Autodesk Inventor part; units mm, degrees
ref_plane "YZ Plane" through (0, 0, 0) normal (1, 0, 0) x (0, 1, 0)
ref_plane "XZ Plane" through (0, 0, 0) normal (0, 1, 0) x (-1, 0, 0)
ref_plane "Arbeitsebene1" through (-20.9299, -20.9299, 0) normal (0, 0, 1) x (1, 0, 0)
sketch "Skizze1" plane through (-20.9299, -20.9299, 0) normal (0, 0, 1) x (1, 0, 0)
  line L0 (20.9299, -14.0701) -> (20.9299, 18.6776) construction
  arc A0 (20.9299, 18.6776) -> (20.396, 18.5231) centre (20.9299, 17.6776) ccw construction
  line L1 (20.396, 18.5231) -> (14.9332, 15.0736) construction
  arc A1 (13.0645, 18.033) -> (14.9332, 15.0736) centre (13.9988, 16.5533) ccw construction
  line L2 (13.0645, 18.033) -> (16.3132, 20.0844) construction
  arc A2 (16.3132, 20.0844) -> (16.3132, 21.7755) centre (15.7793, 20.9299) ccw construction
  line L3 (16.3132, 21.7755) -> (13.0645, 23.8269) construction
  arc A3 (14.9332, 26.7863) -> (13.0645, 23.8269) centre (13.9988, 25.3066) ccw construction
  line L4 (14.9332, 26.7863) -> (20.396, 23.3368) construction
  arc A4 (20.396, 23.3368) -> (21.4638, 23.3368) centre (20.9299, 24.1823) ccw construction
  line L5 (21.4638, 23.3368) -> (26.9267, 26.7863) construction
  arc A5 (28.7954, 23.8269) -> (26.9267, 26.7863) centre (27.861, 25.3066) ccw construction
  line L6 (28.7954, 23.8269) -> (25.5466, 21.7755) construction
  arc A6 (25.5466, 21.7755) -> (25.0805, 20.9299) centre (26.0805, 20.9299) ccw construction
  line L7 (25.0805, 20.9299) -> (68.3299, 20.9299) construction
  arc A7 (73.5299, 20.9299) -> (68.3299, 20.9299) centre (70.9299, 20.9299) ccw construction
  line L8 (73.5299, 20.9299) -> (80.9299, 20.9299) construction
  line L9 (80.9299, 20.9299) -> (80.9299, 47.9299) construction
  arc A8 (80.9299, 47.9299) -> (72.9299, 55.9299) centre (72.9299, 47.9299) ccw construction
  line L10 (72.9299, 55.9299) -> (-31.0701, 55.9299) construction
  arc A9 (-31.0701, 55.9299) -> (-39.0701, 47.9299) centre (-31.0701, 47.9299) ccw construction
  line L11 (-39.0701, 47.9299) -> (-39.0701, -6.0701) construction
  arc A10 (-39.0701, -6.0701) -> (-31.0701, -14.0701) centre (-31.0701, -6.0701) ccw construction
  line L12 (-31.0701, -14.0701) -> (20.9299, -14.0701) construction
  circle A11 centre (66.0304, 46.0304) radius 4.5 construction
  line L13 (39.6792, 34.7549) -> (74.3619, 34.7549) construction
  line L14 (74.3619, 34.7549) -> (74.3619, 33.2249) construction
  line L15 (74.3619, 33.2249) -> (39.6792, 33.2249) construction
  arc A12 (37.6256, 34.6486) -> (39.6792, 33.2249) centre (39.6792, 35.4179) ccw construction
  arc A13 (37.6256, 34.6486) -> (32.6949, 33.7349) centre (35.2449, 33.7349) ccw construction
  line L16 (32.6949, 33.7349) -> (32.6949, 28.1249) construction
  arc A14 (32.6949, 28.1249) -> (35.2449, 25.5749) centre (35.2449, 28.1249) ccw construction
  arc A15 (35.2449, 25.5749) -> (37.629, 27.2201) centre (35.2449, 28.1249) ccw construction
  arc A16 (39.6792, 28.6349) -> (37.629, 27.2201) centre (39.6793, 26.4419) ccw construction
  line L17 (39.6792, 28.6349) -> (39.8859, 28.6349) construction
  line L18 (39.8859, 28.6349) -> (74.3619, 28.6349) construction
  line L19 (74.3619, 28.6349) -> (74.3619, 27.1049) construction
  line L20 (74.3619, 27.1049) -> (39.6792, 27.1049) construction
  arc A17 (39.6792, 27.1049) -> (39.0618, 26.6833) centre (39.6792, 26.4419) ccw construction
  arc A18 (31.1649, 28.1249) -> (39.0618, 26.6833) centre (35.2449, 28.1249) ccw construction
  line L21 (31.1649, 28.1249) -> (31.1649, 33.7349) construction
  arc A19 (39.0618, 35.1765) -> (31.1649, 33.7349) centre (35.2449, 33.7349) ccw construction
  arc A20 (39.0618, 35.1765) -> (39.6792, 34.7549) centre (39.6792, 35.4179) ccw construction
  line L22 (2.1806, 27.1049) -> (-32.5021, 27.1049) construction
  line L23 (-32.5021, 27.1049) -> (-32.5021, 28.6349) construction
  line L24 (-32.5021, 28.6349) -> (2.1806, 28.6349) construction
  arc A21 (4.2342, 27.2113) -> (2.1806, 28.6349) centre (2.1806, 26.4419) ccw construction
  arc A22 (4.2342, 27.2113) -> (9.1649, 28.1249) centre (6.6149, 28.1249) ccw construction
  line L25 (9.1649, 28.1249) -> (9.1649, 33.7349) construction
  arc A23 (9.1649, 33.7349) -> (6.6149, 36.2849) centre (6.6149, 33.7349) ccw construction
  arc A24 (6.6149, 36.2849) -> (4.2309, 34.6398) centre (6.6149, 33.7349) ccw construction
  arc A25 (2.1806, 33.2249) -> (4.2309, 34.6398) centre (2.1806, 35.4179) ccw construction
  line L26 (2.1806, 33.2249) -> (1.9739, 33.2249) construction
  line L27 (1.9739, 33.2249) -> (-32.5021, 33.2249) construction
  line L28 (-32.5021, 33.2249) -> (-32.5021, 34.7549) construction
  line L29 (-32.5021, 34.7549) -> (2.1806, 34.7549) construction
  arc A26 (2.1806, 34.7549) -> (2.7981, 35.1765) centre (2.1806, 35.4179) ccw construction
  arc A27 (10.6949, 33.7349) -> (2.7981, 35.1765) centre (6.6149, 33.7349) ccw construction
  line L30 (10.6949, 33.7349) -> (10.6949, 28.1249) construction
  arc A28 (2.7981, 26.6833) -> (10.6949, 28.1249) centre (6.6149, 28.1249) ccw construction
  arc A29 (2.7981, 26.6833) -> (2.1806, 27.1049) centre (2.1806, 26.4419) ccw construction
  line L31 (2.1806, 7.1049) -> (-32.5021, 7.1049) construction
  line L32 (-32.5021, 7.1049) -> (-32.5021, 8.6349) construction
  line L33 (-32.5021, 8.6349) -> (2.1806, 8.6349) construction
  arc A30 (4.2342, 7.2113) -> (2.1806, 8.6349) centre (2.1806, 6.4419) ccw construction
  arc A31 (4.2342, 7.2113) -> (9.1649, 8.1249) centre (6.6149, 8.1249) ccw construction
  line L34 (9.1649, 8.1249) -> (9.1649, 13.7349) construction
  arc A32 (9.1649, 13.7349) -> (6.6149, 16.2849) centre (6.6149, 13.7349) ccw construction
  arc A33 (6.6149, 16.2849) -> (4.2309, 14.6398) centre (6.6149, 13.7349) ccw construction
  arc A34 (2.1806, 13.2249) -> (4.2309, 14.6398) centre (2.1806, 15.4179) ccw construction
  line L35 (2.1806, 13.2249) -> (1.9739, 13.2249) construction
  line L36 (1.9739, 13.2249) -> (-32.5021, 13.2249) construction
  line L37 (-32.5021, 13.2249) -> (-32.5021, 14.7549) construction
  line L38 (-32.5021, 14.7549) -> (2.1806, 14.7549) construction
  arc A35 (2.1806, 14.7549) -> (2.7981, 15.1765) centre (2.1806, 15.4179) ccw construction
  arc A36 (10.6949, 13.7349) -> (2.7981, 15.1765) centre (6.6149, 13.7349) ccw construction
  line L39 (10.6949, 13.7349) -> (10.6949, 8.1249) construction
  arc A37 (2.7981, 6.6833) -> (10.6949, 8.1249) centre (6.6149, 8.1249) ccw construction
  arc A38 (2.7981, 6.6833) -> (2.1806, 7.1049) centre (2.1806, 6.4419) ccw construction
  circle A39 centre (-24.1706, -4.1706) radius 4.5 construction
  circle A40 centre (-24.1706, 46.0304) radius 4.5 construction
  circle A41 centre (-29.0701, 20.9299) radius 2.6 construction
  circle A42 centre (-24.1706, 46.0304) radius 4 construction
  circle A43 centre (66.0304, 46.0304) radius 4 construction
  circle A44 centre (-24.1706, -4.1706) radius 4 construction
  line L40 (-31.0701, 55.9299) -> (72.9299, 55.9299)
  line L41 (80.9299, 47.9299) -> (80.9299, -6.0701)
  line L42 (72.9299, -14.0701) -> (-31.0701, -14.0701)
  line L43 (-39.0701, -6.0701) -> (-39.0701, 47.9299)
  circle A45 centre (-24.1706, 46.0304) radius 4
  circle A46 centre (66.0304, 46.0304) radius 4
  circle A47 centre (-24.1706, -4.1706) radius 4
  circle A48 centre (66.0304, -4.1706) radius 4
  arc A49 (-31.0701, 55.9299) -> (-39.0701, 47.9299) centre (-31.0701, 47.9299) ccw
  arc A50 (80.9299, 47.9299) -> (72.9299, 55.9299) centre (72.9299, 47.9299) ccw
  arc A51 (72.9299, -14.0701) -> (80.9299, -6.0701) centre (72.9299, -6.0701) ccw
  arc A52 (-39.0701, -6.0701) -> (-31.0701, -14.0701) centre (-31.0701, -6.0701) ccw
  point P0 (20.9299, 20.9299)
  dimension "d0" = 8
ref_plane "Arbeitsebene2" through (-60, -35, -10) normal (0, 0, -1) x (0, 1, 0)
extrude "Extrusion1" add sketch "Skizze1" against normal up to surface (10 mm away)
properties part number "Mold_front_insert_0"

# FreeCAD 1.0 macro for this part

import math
import FreeCAD as App
import Part
import Sketcher

V = App.Vector

doc = App.newDocument("Part")
body = doc.addObject("PartDesign::Body", "Body")

sketch1 = body.newObject("Sketcher::SketchObject", "Sketch")
sketch1.AttachmentSupport = (doc.getObject("XY_Plane"), [""])
sketch1.MapMode = "FlatFace"
sketch1.addGeometry([
    Part.LineSegment(V(52, 35, 0), V(-52, 35, 0)),
    Part.ArcOfCircle(Part.Circle(V(-52, 27, 0), V(0, 0, 1), 8), math.radians(90), math.radians(180)),
    Part.LineSegment(V(-60, 27, 0), V(-60, -27, 0)),
    Part.ArcOfCircle(Part.Circle(V(-52, -27, 0), V(0, 0, 1), 8), math.radians(180), math.radians(270)),
    Part.LineSegment(V(-52, -35, 0), V(52, -35, 0)),
    Part.ArcOfCircle(Part.Circle(V(52, -27, 0), V(0, 0, 1), 8), math.radians(-90), math.radians(0)),
    Part.LineSegment(V(60, -27, 0), V(60, 27, 0)),
    Part.ArcOfCircle(Part.Circle(V(52, 27, 0), V(0, 0, 1), 8), math.radians(0), math.radians(90)),
    Part.Circle(V(-45.1, -25.1, 0), V(0, 0, 1), 4),
    Part.Circle(V(45.1, -25.1, 0), V(0, 0, 1), 4),
    Part.Circle(V(-45.1, 25.1, 0), V(0, 0, 1), 4),
    Part.Circle(V(45.1, 25.1, 0), V(0, 0, 1), 4),
], False)
sketch1.addConstraint([
    Sketcher.Constraint("Tangent", 0, 2, 1, 1),
    Sketcher.Constraint("Tangent", 1, 2, 2, 1),
    Sketcher.Constraint("Tangent", 2, 2, 3, 1),
    Sketcher.Constraint("Tangent", 3, 2, 4, 1),
    Sketcher.Constraint("Tangent", 4, 2, 5, 1),
    Sketcher.Constraint("Tangent", 5, 2, 6, 1),
    Sketcher.Constraint("Tangent", 6, 2, 7, 1),
    Sketcher.Constraint("Tangent", 7, 2, 0, 1),
    Sketcher.Constraint("Horizontal", 0),
    Sketcher.Constraint("Vertical", 2),
    Sketcher.Constraint("Horizontal", 4),
    Sketcher.Constraint("Vertical", 6),
    Sketcher.Constraint("Equal", 1, 3),
    Sketcher.Constraint("Equal", 3, 5),
    Sketcher.Constraint("Equal", 5, 7),
    Sketcher.Constraint("Equal", 8, 9),
    Sketcher.Constraint("Equal", 9, 10),
    Sketcher.Constraint("Equal", 10, 11),
    Sketcher.Constraint("Symmetric", 1, 3, 5, 3, -1, 1),
    Sketcher.Constraint("Symmetric", 9, 3, 10, 3, -1, 1),
    Sketcher.Constraint("Symmetric", 8, 3, 11, 3, -1, 1),
    Sketcher.Constraint("Symmetric", 8, 3, 9, 3, -2),
    Sketcher.Constraint("Diameter", 8, 8.0),
    Sketcher.Constraint("Radius", 1, 8.0),
    Sketcher.Constraint("DistanceX", 0, 2, 0, 1, 104.0),
    Sketcher.Constraint("DistanceY", 2, 2, 2, 1, 54.0),
    Sketcher.Constraint("DistanceX", 8, 3, 9, 3, 90.201),
    Sketcher.Constraint("DistanceY", 8, 3, 10, 3, 50.201),
])
pad1 = body.newObject("PartDesign::Pad", "Pad")
pad1.Profile = sketch1
pad1.Length = 10
pad1.Reversed = True

doc.recompute()
